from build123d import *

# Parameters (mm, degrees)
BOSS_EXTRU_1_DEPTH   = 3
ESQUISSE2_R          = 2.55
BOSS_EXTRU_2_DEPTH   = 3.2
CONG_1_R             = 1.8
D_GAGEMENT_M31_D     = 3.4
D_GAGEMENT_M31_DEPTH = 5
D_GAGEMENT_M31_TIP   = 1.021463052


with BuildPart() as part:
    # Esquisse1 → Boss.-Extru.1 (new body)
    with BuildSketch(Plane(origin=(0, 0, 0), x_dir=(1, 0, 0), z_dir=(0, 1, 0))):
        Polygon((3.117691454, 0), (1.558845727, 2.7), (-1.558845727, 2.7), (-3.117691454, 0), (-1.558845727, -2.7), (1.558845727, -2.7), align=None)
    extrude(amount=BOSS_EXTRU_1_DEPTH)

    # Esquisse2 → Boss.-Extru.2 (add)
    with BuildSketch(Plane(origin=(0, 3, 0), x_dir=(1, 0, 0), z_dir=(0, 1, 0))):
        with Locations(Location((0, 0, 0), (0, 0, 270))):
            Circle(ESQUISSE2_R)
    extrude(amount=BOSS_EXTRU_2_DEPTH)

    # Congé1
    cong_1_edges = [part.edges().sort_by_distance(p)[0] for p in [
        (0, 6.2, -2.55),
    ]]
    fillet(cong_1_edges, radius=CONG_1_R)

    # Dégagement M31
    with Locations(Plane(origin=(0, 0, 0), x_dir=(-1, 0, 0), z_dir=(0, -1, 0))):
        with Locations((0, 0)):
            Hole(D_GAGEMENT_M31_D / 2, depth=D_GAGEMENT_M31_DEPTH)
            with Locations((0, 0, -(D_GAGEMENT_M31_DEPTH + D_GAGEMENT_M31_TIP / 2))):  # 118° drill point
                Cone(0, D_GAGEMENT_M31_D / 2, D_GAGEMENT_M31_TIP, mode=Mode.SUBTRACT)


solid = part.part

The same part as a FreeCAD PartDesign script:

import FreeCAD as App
import Part
import Sketcher
from FreeCAD import Vector
Q = App.Units.Quantity


def edges_at(feature, points):
    """Names of the edges that pass closest to the given points."""
    edges = feature.Shape.Edges
    near = lambda p: min(range(len(edges)), key=lambda i: edges[i].distToShape(Part.Vertex(*p))[0])
    return sorted({f"Edge{near(p) + 1}" for p in points})


def add_polygon(sketch, points):
    """Adds a closed chain of lines whose ends are joined by coincident constraints."""
    first, n = sketch.GeometryCount, len(points)
    for a, b in zip(points, points[1:] + points[:1]):
        sketch.addGeometry(Part.LineSegment(App.Vector(*a, 0), App.Vector(*b, 0)), False)
    for i in range(n):
        sketch.addConstraint(Sketcher.Constraint("Coincident", first + i, 2, first + (i + 1) % n, 1))

doc = App.newDocument("Part")
body = doc.addObject("PartDesign::Body", "Body")

sketch1 = body.newObject("Sketcher::SketchObject", "Sketch")
sketch1.AttachmentSupport = (doc.getObject("XZ_Plane"), [""])
sketch1.MapMode = "FlatFace"
add_polygon(sketch1, [(3.1, 0), (1.6, -2.7), (-1.6, -2.7), (-3.1, 0), (-1.6, 2.7), (1.6, 2.7)])
sketch1.addConstraint([
    Sketcher.Constraint("Horizontal", 1),
    Sketcher.Constraint("Horizontal", 4),
    Sketcher.Constraint("Symmetric", 0, 2, 3, 2, -1, 1),
    Sketcher.Constraint("Symmetric", 2, 2, 5, 2, -1, 1),
    Sketcher.Constraint("PointOnObject", 2, 2, -1),
    Sketcher.Constraint("Parallel", 2, 5),
    Sketcher.Constraint("Vertical", 1, 2, 3, 2),
    Sketcher.Constraint("Angle", 0, Q("-120 deg")),
    Sketcher.Constraint("DistanceY", 0, 2, -1, 1, 2.7),
    Sketcher.Constraint("DistanceX", 1, 2, 1, 1, 3.117691),
])
pad1 = body.newObject("PartDesign::Pad", "Pad")
pad1.Profile = sketch1
pad1.Length = 3
pad1.Reversed = True

sketch2 = body.newObject("Sketcher::SketchObject", "Sketch001")
sketch2.AttachmentSupport = (doc.getObject("XZ_Plane"), [""])
sketch2.MapMode = "FlatFace"
sketch2.AttachmentOffset = App.Placement(Vector(0, 0, -3), App.Rotation())
sketch2.addGeometry(Part.Circle(Vector(0, 0, 0), Vector(0, 0, 1), 2.5), False)
sketch2.addConstraint([
    Sketcher.Constraint("Coincident", 0, 3, -1, 1),
    Sketcher.Constraint("Diameter", 0, 5.1),
])
pad2 = body.newObject("PartDesign::Pad", "Pad001")
pad2.Profile = sketch2
pad2.Length = 3.2
pad2.Reversed = True
doc.recompute()

fillet = body.newObject("PartDesign::Fillet", "Fillet")
fillet.Base = (pad2, edges_at(pad2, [(0, 6.2, -2.55)]))
fillet.Radius = 1.8

sketch3 = body.newObject("Sketcher::SketchObject", "Sketch002")
sketch3.AttachmentSupport = (doc.getObject("XZ_Plane"), [""])
sketch3.MapMode = "FlatFace"
sketch3.addGeometry(Part.Circle(Vector(0, 0, 0), Vector(0, 0, 1), 1.7), False)
sketch3.addConstraint([
    Sketcher.Constraint("Coincident", 0, 3, -1, 1),
    Sketcher.Constraint("Diameter", 0, 3.4),
])
doc.recompute()
hole = body.newObject("PartDesign::Hole", "Hole")
hole.Profile = sketch3
hole.ThreadType = "None"
hole.Diameter = 3.4
hole.DepthType = "Dimension"
hole.Depth = 5
hole.DrillPoint = "Angled"
hole.DrillPointAngle = 118

doc.recompute()
